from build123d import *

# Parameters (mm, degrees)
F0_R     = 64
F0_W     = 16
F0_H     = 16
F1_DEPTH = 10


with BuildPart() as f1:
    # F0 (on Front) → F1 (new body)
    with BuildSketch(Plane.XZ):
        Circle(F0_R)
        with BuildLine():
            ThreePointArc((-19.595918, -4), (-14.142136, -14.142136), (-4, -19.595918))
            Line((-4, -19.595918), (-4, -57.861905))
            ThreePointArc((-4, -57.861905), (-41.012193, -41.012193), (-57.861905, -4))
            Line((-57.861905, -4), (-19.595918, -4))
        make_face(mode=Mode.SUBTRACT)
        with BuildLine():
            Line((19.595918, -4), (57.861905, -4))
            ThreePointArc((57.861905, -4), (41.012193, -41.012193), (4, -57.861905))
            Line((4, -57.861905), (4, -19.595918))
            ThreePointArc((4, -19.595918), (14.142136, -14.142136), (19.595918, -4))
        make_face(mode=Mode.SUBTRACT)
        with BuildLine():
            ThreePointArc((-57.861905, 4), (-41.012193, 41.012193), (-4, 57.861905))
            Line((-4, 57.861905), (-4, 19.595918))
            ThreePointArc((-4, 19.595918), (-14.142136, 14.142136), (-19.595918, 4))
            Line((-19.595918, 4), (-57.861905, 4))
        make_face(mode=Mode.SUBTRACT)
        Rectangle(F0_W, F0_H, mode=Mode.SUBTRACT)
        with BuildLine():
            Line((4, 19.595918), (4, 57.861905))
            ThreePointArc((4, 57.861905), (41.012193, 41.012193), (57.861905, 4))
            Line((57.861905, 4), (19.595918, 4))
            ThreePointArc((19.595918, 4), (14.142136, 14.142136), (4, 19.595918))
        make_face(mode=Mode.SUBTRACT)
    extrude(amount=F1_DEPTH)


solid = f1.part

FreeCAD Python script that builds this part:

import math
import FreeCAD as App
import Part
import Sketcher
from FreeCAD import Vector

doc = App.newDocument("Part")
params = doc.addObject("Spreadsheet::Sheet", "Params")
for row, (alias, value) in enumerate([
    ("sketch1_diameter", "128 mm"),
    ("sketch1_width", "16 mm"),
    ("pad1_length", "10 mm"),
], start=1):
    params.set(f"A{row}", alias)
    params.set(f"B{row}", "=" + value)
    params.setAlias(f"B{row}", alias)

body = doc.addObject("PartDesign::Body", "Body")

# Sketch on XZ plane
sketch1 = body.newObject("Sketcher::SketchObject", "Sketch")
sketch1.AttachmentSupport = (doc.getObject("XZ_Plane"), [""])
sketch1.MapMode = "FlatFace"
sketch1.addGeometry([
    Part.Circle(Vector(0, 0, 0), Vector(0, 0, 1), 64),  # 0
    Part.LineSegment(Vector(-58, -4, 0), Vector(-20, -4, 0)),  # 1
    Part.ArcOfCircle(Part.Circle(Vector(0, 0, 0), Vector(0, 0, 1), 20), math.radians(-168), math.radians(-102)),  # 2
    Part.LineSegment(Vector(-4, -20, 0), Vector(-4, -58, 0)),  # 3
    Part.ArcOfCircle(Part.Circle(Vector(0, 0, 0), Vector(0, 0, 1), 58), math.radians(-176), math.radians(-94)),  # 4
    Part.ArcOfCircle(Part.Circle(Vector(0, 0, 0), Vector(0, 0, 1), 20), math.radians(-78), math.radians(-12)),  # 5
    Part.LineSegment(Vector(20, -4, 0), Vector(58, -4, 0)),  # 6
    Part.ArcOfCircle(Part.Circle(Vector(0, 0, 0), Vector(0, 0, 1), 58), math.radians(-86), math.radians(-4)),  # 7
    Part.LineSegment(Vector(4, -58, 0), Vector(4, -20, 0)),  # 8
    Part.LineSegment(Vector(-20, 4, 0), Vector(-58, 4, 0)),  # 9
    Part.ArcOfCircle(Part.Circle(Vector(0, 0, 0), Vector(0, 0, 1), 58), math.radians(94), math.radians(176)),  # 10
    Part.LineSegment(Vector(-4, 58, 0), Vector(-4, 20, 0)),  # 11
    Part.ArcOfCircle(Part.Circle(Vector(0, 0, 0), Vector(0, 0, 1), 20), math.radians(102), math.radians(168)),  # 12
    Part.LineSegment(Vector(8, -8, 0), Vector(-8, -8, 0)),  # 13
    Part.LineSegment(Vector(-8, -8, 0), Vector(-8, 8, 0)),  # 14
    Part.LineSegment(Vector(-8, 8, 0), Vector(8, 8, 0)),  # 15
    Part.LineSegment(Vector(8, 8, 0), Vector(8, -8, 0)),  # 16
    Part.ArcOfCircle(Part.Circle(Vector(0, 0, 0), Vector(0, 0, 1), 20), math.radians(12), math.radians(78)),  # 17
    Part.LineSegment(Vector(4, 20, 0), Vector(4, 58, 0)),  # 18
    Part.ArcOfCircle(Part.Circle(Vector(0, 0, 0), Vector(0, 0, 1), 58), math.radians(4), math.radians(86)),  # 19
    Part.LineSegment(Vector(58, 4, 0), Vector(20, 4, 0)),  # 20
], False)
sketch1.addConstraint([
    Sketcher.Constraint("Coincident", 1, 2, 2, 1),
    Sketcher.Constraint("Coincident", 2, 2, 3, 1),
    Sketcher.Constraint("Coincident", 3, 2, 4, 2),
    Sketcher.Constraint("Coincident", 4, 1, 1, 1),
    Sketcher.Constraint("Coincident", 5, 2, 6, 1),
    Sketcher.Constraint("Coincident", 6, 2, 7, 2),
    Sketcher.Constraint("Coincident", 7, 1, 8, 1),
    Sketcher.Constraint("Coincident", 8, 2, 5, 1),
    Sketcher.Constraint("Coincident", 9, 2, 10, 2),
    Sketcher.Constraint("Coincident", 10, 1, 11, 1),
    Sketcher.Constraint("Coincident", 11, 2, 12, 1),
    Sketcher.Constraint("Coincident", 12, 2, 9, 1),
    Sketcher.Constraint("Coincident", 13, 2, 14, 1),
    Sketcher.Constraint("Coincident", 14, 2, 15, 1),
    Sketcher.Constraint("Coincident", 15, 2, 16, 1),
    Sketcher.Constraint("Coincident", 16, 2, 13, 1),
    Sketcher.Constraint("Coincident", 17, 2, 18, 1),
    Sketcher.Constraint("Coincident", 18, 2, 19, 2),
    Sketcher.Constraint("Coincident", 19, 1, 20, 1),
    Sketcher.Constraint("Coincident", 20, 2, 17, 1),
    Sketcher.Constraint("Horizontal", 1),
    Sketcher.Constraint("Vertical", 3),
    Sketcher.Constraint("Horizontal", 6),
    Sketcher.Constraint("Vertical", 8),
    Sketcher.Constraint("Horizontal", 9),
    Sketcher.Constraint("Vertical", 11),
    Sketcher.Constraint("Horizontal", 13),
    Sketcher.Constraint("Vertical", 14),
    Sketcher.Constraint("Horizontal", 15),
    Sketcher.Constraint("Vertical", 16),
    Sketcher.Constraint("Vertical", 18),
    Sketcher.Constraint("Horizontal", 20),
    Sketcher.Constraint("Coincident", 0, 3, -1, 1),
    Sketcher.Constraint("Coincident", 2, 3, -1, 1),
    Sketcher.Constraint("Coincident", 4, 3, -1, 1),
    Sketcher.Constraint("Coincident", 5, 3, -1, 1),
    Sketcher.Constraint("Coincident", 7, 3, -1, 1),
    Sketcher.Constraint("Coincident", 10, 3, -1, 1),
    Sketcher.Constraint("Coincident", 12, 3, -1, 1),
    Sketcher.Constraint("Coincident", 17, 3, -1, 1),
    Sketcher.Constraint("Coincident", 19, 3, -1, 1),
    Sketcher.Constraint("Equal", 2, 5),
    Sketcher.Constraint("Equal", 4, 7),
    Sketcher.Constraint("Equal", 7, 10),
    Sketcher.Constraint("Equal", 5, 12),
    Sketcher.Constraint("Equal", 12, 17),
    Sketcher.Constraint("Equal", 10, 19),
    Sketcher.Constraint("Symmetric", 13, 2, 15, 2, -1, 1),
    Sketcher.Constraint("Horizontal", 4, 1, 5, 2),
    Sketcher.Constraint("Horizontal", 3, 2, 7, 1),
    Sketcher.Constraint("Horizontal", 11, 2, 17, 2),
    Sketcher.Constraint("Horizontal", 12, 2, 19, 1),
    Sketcher.Constraint("Vertical", 4, 1, 9, 2),
    Sketcher.Constraint("Vertical", 3, 2, 10, 1),
    Sketcher.Constraint("Equal", 20, 3),
    Sketcher.Constraint("Equal", 15, 14),
    Sketcher.Constraint("Diameter", 0, 128.0),
    Sketcher.Constraint("DistanceX", 13, 2, 13, 1, 16.0),
    Sketcher.Constraint("DistanceY", 1, 2, -1, 1, 4.0),
    Sketcher.Constraint("Radius", 2, 19.999998),
    Sketcher.Constraint("Radius", 4, 58.000003),
])
sketch1.setExpression("Constraints[56]", "Params.sketch1_diameter")
sketch1.setExpression("Constraints[57]", "Params.sketch1_width")
pad1 = body.newObject("PartDesign::Pad", "Pad")
pad1.Profile = sketch1
pad1.setExpression("Length", "Params.pad1_length")

doc.recompute()
